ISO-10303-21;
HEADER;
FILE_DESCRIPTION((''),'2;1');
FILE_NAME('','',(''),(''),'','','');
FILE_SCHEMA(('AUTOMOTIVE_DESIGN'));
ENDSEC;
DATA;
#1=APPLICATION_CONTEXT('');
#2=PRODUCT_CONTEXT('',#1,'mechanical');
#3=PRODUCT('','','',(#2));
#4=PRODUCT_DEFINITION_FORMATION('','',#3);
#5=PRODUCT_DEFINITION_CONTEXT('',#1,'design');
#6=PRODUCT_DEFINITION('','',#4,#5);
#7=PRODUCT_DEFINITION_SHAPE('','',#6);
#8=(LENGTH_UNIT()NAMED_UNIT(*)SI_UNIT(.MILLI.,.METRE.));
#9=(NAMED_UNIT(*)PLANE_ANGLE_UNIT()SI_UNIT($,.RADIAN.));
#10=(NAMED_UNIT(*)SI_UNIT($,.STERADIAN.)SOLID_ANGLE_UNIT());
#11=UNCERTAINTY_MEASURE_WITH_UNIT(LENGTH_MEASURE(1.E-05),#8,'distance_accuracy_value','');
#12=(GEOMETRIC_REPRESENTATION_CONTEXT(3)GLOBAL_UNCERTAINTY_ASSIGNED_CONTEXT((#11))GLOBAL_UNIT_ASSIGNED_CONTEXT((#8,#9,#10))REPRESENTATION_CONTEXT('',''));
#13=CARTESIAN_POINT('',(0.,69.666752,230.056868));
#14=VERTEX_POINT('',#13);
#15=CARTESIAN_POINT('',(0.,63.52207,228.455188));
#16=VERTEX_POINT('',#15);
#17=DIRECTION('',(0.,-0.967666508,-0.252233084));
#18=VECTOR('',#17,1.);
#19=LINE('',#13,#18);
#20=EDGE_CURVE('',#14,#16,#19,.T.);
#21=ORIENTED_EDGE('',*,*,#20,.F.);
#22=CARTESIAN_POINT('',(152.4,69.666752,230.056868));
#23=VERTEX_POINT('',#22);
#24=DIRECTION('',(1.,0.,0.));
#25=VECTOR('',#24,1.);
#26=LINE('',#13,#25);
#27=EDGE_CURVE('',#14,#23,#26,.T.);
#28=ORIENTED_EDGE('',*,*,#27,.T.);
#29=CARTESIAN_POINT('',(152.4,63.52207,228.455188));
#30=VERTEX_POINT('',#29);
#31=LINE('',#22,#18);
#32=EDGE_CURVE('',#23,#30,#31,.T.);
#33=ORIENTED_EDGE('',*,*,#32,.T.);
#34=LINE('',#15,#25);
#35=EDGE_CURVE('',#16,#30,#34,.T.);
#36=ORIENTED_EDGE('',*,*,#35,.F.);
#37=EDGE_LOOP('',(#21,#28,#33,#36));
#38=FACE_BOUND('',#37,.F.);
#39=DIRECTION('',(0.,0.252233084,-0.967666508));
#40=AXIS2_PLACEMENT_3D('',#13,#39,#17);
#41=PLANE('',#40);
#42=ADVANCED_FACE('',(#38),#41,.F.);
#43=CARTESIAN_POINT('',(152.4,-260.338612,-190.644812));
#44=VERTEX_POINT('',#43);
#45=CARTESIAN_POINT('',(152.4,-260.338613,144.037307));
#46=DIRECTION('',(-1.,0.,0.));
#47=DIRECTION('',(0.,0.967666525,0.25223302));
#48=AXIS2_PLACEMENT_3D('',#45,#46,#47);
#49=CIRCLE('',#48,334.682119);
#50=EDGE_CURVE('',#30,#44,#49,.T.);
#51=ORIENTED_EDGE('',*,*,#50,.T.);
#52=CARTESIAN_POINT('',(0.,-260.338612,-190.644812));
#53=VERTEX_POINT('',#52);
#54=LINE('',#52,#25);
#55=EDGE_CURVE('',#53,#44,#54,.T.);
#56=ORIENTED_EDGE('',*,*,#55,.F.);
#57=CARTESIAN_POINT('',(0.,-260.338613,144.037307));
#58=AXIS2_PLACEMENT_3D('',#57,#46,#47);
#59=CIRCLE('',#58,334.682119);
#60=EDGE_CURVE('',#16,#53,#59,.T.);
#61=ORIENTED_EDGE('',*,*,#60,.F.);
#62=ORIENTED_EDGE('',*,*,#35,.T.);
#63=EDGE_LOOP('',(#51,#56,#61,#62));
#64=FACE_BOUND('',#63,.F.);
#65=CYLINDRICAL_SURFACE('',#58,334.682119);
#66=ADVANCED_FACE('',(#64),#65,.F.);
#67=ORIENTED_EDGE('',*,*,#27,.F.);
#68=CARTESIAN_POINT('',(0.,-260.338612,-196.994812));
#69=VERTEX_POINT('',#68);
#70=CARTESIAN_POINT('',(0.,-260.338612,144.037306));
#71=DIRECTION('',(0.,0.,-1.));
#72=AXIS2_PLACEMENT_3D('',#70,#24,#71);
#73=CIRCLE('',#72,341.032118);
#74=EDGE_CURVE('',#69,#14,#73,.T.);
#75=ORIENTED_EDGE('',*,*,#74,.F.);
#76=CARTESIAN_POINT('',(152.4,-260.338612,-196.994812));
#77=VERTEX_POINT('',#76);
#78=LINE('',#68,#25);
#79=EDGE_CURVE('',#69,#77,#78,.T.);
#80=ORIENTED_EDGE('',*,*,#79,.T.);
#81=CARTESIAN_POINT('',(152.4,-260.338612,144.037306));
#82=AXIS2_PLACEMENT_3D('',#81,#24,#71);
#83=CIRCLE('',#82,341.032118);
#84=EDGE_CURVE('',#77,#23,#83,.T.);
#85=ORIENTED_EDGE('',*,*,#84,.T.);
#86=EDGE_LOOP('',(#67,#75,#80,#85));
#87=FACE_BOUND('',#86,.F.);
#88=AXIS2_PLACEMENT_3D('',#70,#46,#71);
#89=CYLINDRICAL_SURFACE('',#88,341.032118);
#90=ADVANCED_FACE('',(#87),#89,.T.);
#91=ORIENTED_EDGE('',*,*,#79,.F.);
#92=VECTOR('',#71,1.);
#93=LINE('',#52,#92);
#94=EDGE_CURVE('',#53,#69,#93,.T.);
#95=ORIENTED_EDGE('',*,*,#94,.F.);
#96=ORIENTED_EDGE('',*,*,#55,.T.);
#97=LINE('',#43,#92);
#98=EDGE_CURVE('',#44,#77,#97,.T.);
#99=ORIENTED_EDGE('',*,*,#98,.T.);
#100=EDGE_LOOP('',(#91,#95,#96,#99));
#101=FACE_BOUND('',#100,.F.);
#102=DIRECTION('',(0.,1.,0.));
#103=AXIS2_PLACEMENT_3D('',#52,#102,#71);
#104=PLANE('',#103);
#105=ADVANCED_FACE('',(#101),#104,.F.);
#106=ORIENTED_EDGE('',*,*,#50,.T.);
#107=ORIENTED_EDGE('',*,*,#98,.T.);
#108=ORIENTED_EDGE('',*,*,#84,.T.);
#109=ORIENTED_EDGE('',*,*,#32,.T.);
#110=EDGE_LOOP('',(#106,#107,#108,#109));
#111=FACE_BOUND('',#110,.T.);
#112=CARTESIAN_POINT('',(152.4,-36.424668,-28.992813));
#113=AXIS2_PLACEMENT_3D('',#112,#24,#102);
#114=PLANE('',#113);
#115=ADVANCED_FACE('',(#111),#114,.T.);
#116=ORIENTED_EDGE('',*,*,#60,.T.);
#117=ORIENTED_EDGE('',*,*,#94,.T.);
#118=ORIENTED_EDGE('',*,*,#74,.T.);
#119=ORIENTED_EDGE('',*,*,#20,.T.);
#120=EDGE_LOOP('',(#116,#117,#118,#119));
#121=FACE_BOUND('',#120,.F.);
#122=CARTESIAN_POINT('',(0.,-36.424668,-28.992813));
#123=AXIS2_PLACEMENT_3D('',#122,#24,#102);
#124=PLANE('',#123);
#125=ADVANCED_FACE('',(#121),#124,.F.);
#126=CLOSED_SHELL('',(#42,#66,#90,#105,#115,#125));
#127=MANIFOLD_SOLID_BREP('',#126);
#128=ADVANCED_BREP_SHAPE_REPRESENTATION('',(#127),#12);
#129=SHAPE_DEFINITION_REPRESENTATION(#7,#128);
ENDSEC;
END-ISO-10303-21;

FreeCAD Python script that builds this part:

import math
import FreeCAD as App
import Part
import Sketcher
Q = App.Units.Quantity

doc = App.newDocument("Part")
body = doc.addObject("PartDesign::Body", "Body")

# Sketch on YZ plane
sketch1 = doc.addObject("Sketcher::SketchObject", "Sketch")
body.addObject(sketch1)
sketch1.AttachmentSupport = (doc.YZ_Plane, [""])
sketch1.MapMode = "FlatFace"
sketch1.addGeometry([
    Part.ArcOfCircle(Part.Circle(App.Vector(-260, 144, 0), App.Vector(0, 0, 1), 335), math.radians(-90), math.radians(15)),
    Part.LineSegment(App.Vector(-260, -191, 0), App.Vector(-260, -197, 0)),
    Part.ArcOfCircle(Part.Circle(App.Vector(-260, 144, 0), App.Vector(0, 0, 1), 341), math.radians(-90), math.radians(15)),
    Part.LineSegment(App.Vector(70, 230, 0), App.Vector(64, 228, 0)),
], False)
sketch1.addConstraint([
    Sketcher.Constraint("Coincident", 0, 1, 1, 1),
    Sketcher.Constraint("Coincident", 1, 2, 2, 1),
    Sketcher.Constraint("Coincident", 2, 2, 3, 1),
    Sketcher.Constraint("Coincident", 3, 2, 0, 2),
    Sketcher.Constraint("Vertical", 1),
    Sketcher.Constraint("Coincident", 2, 3, 0, 3),
    Sketcher.Constraint("Vertical", 2, 3, 0, 1),
    Sketcher.Constraint("DistanceY", 1, 2, 1, 1, Q("0.25 in")),
    Sketcher.Constraint("DistanceY", 0, 1, 3, 2, Q("16.5 in")),
    Sketcher.Constraint("Radius", 0, 334.682119),
    Sketcher.Constraint("DistanceX", 2, 3, -1, 1, 260.338612),
    Sketcher.Constraint("DistanceY", 1, 2, -1, 1, 196.994812),
    Sketcher.Constraint("DistanceX", -1, 1, 2, 2, 69.666752),
])
pad1 = doc.addObject("PartDesign::Pad", "Pad")
body.addObject(pad1)
pad1.Profile = sketch1
pad1.Length = Q("6 in")

doc.recompute()
